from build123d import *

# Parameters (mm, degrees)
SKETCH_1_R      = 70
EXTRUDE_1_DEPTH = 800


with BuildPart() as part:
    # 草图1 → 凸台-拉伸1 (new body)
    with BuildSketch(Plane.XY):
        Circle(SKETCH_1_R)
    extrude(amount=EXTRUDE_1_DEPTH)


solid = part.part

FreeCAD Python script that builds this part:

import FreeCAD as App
import Part
import Sketcher
from FreeCAD import Vector
Q = App.Units.Quantity

doc = App.newDocument("Part")
body = doc.addObject("PartDesign::Body", "Body")

# Sketch on XY plane
sketch1 = doc.addObject("Sketcher::SketchObject", "Sketch")
body.addObject(sketch1)
sketch1.AttachmentSupport = (doc.XY_Plane, [""])
sketch1.MapMode = "FlatFace"
sketch1.addGeometry(Part.Circle(Vector(0, 0, 0), Vector(0, 0, 1), 70), False)
sketch1.addConstraint([
    Sketcher.Constraint("Coincident", 0, 3, -1, 1),
    Sketcher.Constraint("Diameter", 0, Q("140 mm")),
])
pad1 = doc.addObject("PartDesign::Pad", "Pad")
body.addObject(pad1)
pad1.Profile = sketch1
pad1.Length = 800

doc.recompute()
